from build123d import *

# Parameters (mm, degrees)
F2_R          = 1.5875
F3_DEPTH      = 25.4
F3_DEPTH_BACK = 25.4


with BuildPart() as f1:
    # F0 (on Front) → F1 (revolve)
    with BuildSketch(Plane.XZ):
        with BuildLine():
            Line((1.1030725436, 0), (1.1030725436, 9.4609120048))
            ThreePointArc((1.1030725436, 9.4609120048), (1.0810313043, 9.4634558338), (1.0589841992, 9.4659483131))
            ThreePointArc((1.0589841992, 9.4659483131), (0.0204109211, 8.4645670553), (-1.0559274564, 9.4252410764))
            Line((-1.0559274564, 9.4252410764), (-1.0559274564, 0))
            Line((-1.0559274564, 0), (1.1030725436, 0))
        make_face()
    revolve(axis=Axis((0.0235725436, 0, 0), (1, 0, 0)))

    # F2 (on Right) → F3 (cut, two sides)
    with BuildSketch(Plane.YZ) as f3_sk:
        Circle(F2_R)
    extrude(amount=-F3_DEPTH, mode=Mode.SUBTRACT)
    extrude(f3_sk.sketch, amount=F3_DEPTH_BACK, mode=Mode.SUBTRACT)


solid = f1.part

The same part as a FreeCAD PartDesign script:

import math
import FreeCAD as App
import Part
import Sketcher

V = App.Vector
Q = App.Units.Quantity

doc = App.newDocument("Part")
body = doc.addObject("PartDesign::Body", "Body")

# Sketch on XZ plane
sketch1 = body.newObject("Sketcher::SketchObject", "Sketch")
sketch1.AttachmentSupport = (doc.getObject("XZ_Plane"), [""])
sketch1.MapMode = "FlatFace"
sketch1.addGeometry([
    Part.LineSegment(V(1.103, 0, 0), V(1.103, 9.461, 0)),  # 0
    Part.ArcOfCircle(Part.Circle(V(0, 0, 0), V(0, 0, 1), 9.525), math.radians(83.35), math.radians(83.62)),  # 1
    Part.ArcOfCircle(Part.Circle(V(0, 9.525, 0), V(0, 0, 1), 1.061), math.radians(-175), math.radians(-3)),  # 2
    Part.LineSegment(V(-1.056, 9.425, 0), V(-1.056, 0, 0)),  # 3
    Part.LineSegment(V(-1.056, 0, 0), V(1.103, 0, 0)),  # 4
], False)
sketch1.addConstraint([
    Sketcher.Constraint("Coincident", 0, 2, 1, 1),
    Sketcher.Constraint("Coincident", 1, 2, 2, 2),
    Sketcher.Constraint("Coincident", 2, 1, 3, 1),
    Sketcher.Constraint("Coincident", 3, 2, 4, 1),
    Sketcher.Constraint("Coincident", 4, 2, 0, 1),
    Sketcher.Constraint("Vertical", 0),
    Sketcher.Constraint("Vertical", 3),
    Sketcher.Constraint("Horizontal", 4),
    Sketcher.Constraint("PointOnObject", 1, 3, -2),
    Sketcher.Constraint("PointOnObject", 2, 3, -2),
    Sketcher.Constraint("PointOnObject", 3, 2, -1),
    Sketcher.Constraint("DistanceX", 4, 1, 4, 2, Q("0.085 in")),
    Sketcher.Constraint("DistanceY", -1, 1, 2, 3, Q("0.375 in")),
    Sketcher.Constraint("Radius", 1, Q("9.525011 mm")),
    Sketcher.Constraint("Radius", 2, Q("1.060629 mm")),
    Sketcher.Constraint("DistanceY", 3, 2, 3, 1, Q("9.425241 mm")),
    Sketcher.Constraint("DistanceY", 0, 1, 0, 2, Q("9.460912 mm")),
])
revolution = body.newObject("PartDesign::Revolution", "Revolution")
revolution.Profile = sketch1
revolution.ReferenceAxis = (sketch1, ["H_Axis"])
revolution.Angle = 360

# Sketch on YZ plane
sketch2 = body.newObject("Sketcher::SketchObject", "Sketch001")
sketch2.AttachmentSupport = (doc.getObject("YZ_Plane"), [""])
sketch2.MapMode = "FlatFace"
sketch2.addGeometry(Part.Circle(V(0, 0, 0), V(0, 0, 1), 1.6), False)
sketch2.addConstraint([
    Sketcher.Constraint("Coincident", 0, 3, -1, 1),
    Sketcher.Constraint("Diameter", 0, Q("0.125 in")),
])
pocket1 = body.newObject("PartDesign::Pocket", "Pocket")
pocket1.Profile = sketch2
pocket1.Type = "ThroughAll"
pocket1.Midplane = True

doc.recompute()
